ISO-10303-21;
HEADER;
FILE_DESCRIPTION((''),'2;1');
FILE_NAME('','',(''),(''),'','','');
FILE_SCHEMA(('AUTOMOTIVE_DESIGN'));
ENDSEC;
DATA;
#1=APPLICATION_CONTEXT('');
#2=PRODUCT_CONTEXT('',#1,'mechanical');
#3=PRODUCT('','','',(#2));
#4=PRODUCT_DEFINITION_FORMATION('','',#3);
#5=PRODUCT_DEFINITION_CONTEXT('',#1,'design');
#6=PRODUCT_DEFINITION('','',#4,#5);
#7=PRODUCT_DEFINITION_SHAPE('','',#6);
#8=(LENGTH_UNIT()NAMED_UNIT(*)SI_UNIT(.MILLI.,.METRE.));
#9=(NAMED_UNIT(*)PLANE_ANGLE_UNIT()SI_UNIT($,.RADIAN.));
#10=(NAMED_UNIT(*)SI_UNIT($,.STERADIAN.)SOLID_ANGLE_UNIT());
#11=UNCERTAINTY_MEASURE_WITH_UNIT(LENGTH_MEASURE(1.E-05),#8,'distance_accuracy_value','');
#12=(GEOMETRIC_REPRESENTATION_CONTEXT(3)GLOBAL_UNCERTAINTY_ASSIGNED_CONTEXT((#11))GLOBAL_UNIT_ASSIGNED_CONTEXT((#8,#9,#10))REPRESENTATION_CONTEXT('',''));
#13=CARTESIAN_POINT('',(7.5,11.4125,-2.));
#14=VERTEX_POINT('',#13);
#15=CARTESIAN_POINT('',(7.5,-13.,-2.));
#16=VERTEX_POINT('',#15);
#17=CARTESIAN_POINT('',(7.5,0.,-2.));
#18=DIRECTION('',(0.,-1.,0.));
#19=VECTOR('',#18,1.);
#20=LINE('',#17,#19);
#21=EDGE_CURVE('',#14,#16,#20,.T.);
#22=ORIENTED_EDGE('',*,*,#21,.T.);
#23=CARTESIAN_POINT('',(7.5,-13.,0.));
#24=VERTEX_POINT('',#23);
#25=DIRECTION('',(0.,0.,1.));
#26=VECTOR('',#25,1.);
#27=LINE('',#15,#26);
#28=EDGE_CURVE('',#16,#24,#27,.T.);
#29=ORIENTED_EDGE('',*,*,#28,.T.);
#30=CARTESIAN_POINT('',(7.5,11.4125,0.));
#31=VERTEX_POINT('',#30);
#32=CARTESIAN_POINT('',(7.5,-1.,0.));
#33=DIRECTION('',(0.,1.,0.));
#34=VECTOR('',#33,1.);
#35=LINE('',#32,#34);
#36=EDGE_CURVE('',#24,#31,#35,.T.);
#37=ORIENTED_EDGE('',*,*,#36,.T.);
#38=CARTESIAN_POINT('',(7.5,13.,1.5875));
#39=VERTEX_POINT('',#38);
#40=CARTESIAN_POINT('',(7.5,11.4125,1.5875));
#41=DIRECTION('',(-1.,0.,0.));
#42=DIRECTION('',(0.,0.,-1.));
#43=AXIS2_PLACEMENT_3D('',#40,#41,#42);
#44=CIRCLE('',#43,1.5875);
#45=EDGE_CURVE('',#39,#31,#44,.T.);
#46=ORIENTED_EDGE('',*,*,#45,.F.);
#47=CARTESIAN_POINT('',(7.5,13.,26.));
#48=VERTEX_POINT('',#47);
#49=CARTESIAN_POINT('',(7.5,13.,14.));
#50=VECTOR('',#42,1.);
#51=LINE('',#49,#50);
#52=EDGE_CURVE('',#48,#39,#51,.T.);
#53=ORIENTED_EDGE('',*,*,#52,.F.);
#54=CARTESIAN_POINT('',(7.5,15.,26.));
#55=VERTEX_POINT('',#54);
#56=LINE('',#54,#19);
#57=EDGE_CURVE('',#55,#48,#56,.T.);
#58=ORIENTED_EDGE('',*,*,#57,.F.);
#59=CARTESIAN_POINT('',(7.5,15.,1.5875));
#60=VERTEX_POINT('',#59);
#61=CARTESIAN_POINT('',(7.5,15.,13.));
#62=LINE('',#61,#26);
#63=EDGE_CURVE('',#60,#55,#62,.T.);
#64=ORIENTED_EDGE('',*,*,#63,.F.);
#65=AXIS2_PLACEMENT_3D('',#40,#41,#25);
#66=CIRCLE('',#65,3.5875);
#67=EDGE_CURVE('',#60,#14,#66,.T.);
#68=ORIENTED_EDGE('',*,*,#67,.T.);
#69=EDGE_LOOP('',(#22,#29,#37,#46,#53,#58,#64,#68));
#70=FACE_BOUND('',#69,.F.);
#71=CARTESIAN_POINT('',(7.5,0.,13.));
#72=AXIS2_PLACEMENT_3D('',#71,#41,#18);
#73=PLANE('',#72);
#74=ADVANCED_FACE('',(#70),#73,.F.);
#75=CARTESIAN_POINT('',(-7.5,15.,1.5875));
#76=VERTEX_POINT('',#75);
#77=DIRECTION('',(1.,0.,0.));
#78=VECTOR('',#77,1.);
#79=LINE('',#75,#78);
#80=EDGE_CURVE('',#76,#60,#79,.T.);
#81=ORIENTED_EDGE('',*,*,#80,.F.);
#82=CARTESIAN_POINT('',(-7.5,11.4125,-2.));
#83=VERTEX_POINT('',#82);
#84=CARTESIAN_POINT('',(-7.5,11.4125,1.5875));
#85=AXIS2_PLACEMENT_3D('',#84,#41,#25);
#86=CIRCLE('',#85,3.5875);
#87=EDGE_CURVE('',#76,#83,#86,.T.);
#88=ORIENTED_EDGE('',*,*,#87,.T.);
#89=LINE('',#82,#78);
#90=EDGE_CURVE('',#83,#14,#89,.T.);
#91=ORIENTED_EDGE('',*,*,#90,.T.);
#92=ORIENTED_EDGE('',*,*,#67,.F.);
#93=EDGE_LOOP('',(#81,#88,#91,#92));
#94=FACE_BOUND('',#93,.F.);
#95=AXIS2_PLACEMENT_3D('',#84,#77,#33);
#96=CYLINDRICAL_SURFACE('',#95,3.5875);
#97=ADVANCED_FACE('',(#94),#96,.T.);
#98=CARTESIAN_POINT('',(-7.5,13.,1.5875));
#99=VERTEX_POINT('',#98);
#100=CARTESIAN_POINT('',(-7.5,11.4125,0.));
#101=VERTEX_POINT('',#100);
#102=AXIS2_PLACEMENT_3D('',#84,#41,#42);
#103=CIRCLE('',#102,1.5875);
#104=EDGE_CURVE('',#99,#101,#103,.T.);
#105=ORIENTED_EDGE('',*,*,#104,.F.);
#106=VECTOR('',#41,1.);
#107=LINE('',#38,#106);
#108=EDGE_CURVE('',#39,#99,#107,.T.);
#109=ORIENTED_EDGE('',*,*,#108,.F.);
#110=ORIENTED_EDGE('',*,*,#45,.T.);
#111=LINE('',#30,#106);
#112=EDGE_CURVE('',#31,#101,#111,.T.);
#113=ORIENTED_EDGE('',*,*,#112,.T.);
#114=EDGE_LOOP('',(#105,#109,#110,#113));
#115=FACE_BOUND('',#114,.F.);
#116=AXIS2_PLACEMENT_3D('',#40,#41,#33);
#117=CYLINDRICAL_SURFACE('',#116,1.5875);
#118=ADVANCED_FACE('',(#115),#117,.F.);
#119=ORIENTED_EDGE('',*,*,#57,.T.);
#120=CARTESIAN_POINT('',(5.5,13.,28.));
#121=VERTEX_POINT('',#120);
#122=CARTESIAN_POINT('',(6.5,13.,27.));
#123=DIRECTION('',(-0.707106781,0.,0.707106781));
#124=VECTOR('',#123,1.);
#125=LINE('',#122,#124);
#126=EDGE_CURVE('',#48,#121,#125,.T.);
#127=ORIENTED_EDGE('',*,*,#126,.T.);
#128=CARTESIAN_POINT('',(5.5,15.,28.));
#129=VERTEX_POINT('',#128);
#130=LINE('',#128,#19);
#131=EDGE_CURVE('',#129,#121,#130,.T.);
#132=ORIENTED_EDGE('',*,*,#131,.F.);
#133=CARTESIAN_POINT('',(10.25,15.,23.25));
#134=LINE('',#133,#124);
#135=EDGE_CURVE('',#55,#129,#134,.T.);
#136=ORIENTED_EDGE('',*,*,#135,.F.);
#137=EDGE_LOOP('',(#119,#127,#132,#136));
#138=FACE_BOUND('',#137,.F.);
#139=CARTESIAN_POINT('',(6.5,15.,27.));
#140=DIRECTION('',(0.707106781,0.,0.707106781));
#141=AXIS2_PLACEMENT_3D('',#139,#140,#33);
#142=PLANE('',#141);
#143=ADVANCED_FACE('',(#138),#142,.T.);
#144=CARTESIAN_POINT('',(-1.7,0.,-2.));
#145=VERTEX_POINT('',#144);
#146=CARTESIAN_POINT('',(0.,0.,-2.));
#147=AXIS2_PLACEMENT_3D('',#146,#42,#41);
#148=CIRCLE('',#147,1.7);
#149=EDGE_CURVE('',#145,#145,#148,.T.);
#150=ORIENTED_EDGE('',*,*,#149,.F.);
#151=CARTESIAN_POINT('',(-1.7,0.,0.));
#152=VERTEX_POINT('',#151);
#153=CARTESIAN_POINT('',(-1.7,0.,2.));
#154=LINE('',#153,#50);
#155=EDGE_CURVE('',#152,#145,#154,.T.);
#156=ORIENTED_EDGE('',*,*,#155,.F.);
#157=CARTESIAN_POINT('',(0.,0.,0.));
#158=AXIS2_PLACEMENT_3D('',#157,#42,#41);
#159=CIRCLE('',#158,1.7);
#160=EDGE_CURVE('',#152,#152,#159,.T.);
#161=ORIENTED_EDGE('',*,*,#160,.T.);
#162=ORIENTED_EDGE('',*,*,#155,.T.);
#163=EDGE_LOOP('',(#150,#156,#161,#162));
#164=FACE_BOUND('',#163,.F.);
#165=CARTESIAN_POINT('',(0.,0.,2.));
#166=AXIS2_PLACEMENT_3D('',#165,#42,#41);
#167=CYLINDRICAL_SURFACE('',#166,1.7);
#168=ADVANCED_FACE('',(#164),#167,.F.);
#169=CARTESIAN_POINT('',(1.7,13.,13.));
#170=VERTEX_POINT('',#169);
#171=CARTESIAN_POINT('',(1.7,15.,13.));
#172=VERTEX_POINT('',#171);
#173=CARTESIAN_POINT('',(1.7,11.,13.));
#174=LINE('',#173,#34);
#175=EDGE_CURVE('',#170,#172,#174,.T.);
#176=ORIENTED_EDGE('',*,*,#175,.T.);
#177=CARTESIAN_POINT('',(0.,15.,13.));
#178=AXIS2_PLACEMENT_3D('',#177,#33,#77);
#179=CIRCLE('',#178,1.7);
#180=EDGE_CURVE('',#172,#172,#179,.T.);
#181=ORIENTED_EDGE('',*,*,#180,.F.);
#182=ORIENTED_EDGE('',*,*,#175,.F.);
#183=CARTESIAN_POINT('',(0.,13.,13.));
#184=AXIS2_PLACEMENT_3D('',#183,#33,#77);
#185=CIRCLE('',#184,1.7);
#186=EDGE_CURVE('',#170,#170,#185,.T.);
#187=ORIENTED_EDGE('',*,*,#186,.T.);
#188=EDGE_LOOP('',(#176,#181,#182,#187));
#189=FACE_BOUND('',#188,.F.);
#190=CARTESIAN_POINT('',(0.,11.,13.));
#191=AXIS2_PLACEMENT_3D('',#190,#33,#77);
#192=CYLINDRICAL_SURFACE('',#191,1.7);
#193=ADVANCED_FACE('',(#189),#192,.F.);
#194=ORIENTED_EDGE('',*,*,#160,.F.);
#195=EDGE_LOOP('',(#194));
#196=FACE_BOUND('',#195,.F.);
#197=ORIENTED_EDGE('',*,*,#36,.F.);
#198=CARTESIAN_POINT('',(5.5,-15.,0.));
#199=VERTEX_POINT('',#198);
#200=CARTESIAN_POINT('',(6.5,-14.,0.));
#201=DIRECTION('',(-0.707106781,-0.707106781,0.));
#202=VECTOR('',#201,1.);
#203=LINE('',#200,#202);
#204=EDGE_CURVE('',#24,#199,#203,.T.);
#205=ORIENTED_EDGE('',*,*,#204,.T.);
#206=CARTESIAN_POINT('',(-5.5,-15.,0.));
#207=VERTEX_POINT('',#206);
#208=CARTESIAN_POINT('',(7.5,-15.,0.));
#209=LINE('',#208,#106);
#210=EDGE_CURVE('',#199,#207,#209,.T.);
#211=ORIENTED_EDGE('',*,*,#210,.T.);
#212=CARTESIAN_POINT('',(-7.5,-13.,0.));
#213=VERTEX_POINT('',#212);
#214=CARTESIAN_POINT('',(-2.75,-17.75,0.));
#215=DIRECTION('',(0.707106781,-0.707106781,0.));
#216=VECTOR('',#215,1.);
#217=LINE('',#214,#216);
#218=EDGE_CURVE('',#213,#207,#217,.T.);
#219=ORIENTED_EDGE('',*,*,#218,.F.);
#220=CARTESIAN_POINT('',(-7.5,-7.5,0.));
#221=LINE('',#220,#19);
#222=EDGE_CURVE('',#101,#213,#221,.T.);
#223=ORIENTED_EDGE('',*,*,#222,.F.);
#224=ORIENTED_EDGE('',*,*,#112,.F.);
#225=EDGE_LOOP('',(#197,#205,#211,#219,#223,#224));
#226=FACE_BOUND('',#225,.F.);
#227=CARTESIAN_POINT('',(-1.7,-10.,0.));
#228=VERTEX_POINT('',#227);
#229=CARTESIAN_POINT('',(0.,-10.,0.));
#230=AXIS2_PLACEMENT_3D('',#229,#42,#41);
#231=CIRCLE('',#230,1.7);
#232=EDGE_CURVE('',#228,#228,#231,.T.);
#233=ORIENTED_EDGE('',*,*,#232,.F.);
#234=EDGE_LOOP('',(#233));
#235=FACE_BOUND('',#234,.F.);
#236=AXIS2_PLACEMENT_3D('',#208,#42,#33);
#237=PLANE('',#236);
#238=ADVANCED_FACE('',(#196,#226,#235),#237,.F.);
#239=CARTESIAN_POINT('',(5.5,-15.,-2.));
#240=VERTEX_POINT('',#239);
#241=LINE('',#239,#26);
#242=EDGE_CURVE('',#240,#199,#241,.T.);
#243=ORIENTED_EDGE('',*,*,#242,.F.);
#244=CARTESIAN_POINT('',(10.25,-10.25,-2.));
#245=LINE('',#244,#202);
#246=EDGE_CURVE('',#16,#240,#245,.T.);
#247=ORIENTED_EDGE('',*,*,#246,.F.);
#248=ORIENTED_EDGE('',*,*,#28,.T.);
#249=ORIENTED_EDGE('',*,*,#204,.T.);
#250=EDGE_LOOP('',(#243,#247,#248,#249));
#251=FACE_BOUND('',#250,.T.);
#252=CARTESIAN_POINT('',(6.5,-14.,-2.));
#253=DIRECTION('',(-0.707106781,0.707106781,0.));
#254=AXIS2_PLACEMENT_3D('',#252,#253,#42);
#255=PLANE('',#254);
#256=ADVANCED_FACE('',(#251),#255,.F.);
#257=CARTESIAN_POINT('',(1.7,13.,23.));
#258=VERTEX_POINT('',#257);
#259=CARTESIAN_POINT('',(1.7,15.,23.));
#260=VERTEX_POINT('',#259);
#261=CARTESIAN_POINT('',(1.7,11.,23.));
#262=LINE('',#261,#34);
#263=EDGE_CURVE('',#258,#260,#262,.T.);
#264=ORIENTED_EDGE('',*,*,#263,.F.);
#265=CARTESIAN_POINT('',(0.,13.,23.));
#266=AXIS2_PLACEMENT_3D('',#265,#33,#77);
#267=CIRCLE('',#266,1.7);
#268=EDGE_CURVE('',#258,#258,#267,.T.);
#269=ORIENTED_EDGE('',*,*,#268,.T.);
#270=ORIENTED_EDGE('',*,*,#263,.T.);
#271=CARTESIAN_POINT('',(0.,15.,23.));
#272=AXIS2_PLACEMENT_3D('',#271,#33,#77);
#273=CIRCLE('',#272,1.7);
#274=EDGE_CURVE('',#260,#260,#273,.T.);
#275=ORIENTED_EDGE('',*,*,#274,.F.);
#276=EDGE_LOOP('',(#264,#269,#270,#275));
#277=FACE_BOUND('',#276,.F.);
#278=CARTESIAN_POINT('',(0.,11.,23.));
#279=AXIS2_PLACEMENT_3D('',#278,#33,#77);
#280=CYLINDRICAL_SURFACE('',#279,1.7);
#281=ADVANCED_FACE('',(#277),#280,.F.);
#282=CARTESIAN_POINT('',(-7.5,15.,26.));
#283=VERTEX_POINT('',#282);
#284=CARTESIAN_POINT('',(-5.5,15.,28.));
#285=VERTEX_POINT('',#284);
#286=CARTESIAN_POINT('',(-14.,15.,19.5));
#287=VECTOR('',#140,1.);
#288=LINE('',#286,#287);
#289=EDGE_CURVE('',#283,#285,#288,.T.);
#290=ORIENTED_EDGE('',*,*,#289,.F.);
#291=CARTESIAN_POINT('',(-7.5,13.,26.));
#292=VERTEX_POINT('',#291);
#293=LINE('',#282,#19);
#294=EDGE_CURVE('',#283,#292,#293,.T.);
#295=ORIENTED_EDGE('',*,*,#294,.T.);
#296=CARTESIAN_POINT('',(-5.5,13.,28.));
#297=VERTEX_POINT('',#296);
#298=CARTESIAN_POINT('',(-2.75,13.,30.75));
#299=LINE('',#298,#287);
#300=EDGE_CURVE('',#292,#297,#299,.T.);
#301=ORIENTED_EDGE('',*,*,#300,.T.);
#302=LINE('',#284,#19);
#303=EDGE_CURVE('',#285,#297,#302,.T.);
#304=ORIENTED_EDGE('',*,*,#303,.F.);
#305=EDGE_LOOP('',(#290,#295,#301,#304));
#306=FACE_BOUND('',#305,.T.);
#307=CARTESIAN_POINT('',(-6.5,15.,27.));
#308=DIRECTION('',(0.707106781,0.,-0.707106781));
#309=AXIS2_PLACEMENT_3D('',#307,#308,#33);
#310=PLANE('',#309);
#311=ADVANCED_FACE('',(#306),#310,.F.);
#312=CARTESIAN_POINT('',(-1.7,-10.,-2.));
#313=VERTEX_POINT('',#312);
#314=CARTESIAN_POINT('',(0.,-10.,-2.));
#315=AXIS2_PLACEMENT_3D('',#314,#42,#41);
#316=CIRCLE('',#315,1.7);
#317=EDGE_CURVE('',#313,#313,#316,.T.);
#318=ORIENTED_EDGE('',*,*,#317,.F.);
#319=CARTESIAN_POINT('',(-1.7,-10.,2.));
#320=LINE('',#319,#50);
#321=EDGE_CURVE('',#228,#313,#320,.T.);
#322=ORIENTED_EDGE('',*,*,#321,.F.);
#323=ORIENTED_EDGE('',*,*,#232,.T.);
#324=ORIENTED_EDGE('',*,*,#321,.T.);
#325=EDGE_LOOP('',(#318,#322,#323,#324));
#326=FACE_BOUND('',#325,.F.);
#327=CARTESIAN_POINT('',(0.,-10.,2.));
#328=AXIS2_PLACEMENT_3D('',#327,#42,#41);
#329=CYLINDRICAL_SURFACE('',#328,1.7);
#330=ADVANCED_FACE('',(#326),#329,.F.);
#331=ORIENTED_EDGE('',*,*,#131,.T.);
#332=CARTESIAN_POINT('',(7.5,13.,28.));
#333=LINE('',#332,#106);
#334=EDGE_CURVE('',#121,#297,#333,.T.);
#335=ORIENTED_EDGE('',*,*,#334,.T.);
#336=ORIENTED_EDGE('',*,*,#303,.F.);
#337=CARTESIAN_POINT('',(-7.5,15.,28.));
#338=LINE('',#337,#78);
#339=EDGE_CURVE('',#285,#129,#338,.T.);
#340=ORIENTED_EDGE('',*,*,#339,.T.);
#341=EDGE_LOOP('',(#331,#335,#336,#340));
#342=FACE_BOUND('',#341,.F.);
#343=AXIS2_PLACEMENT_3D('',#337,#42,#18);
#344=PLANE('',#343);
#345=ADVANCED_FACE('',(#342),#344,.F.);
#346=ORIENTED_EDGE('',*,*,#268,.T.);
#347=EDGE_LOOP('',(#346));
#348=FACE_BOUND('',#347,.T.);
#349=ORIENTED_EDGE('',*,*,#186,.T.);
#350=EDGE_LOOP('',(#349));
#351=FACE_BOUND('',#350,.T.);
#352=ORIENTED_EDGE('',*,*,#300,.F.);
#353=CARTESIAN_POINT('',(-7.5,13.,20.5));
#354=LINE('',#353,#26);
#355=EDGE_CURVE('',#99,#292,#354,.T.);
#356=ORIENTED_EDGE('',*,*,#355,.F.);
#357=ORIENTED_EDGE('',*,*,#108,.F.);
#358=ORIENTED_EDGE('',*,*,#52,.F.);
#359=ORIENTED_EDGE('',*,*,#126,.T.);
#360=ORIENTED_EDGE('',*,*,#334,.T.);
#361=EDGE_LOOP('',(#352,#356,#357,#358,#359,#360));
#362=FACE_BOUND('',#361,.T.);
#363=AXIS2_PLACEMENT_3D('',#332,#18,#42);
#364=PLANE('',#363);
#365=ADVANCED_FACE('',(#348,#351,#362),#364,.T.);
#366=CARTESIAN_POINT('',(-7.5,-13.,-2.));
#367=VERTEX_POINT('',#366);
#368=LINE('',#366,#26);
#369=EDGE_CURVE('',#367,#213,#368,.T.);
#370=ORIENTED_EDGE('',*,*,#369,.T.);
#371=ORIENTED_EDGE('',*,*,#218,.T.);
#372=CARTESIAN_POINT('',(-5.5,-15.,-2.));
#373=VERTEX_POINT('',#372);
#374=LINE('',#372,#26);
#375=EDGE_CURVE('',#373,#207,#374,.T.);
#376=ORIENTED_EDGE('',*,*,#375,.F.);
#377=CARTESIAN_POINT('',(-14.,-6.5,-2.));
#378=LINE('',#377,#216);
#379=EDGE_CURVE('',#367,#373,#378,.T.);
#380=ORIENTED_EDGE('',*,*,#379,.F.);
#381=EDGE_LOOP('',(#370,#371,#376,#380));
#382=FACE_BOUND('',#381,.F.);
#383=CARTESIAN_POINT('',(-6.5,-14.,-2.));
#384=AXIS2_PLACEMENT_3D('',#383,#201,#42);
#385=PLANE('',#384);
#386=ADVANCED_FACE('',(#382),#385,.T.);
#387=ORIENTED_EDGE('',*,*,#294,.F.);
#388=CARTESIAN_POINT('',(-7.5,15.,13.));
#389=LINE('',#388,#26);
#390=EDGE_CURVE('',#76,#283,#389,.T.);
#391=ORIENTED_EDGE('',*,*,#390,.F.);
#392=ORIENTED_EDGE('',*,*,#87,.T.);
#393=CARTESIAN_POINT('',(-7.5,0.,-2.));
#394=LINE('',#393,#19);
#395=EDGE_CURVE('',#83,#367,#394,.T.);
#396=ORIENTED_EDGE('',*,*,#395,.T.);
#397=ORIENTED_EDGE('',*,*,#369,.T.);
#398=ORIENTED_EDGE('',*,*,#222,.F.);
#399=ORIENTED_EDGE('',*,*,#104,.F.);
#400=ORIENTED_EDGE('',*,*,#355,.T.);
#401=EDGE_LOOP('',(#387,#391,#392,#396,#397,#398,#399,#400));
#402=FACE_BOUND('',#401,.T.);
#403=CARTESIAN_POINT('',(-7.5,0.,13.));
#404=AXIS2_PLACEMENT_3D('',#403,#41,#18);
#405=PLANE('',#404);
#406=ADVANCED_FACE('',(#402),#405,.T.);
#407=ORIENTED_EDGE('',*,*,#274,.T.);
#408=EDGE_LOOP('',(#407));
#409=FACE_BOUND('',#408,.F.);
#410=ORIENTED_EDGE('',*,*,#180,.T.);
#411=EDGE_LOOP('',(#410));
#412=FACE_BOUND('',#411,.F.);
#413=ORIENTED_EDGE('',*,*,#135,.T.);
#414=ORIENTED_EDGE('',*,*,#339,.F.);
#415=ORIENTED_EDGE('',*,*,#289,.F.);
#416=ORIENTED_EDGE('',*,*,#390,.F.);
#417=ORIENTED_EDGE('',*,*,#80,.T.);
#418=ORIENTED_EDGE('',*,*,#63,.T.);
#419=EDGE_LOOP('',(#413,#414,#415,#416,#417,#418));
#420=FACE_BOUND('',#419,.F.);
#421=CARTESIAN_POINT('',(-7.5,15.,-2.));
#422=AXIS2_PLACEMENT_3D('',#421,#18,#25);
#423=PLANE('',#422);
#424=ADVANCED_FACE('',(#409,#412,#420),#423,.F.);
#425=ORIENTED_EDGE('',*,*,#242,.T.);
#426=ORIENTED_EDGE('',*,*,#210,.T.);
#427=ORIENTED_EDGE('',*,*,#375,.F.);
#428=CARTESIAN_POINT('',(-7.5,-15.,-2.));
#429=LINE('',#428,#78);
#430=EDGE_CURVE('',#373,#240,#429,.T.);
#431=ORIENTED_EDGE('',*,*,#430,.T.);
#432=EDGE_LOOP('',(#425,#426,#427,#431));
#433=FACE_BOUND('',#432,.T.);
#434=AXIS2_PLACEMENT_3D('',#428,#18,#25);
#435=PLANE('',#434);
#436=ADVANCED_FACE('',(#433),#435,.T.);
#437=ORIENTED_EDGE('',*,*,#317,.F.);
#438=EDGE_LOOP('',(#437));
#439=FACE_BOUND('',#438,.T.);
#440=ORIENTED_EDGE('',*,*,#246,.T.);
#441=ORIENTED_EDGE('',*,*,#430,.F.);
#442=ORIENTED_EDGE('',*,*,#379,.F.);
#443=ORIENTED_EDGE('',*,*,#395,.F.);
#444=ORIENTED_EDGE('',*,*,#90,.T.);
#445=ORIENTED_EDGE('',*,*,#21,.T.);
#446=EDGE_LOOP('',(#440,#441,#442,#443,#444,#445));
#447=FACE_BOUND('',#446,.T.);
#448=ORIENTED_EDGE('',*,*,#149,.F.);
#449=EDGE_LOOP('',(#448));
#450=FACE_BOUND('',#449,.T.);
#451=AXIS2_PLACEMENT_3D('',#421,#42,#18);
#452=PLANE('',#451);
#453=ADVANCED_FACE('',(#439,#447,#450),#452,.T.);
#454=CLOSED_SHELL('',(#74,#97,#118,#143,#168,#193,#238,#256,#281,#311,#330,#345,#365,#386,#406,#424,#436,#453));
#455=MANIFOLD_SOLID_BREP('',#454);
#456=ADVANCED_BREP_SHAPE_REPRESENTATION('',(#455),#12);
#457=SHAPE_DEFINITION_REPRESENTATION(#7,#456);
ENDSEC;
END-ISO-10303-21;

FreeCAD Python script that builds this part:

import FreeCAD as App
import Part
import Sketcher
from FreeCAD import Vector
Q = App.Units.Quantity


def edges_at(feature, points):
    """Names of the edges that pass closest to the given points."""
    edges = feature.Shape.Edges
    near = lambda p: min(range(len(edges)), key=lambda i: edges[i].distToShape(Part.Vertex(*p))[0])
    return sorted({f"Edge{near(p) + 1}" for p in points})


def add_polygon(sketch, points):
    """Adds a closed chain of lines whose ends are joined by coincident constraints."""
    first, n = sketch.GeometryCount, len(points)
    for a, b in zip(points, points[1:] + points[:1]):
        sketch.addGeometry(Part.LineSegment(App.Vector(*a, 0), App.Vector(*b, 0)), False)
    for i in range(n):
        sketch.addConstraint(Sketcher.Constraint("Coincident", first + i, 2, first + (i + 1) % n, 1))

doc = App.newDocument("Part")
body = doc.addObject("PartDesign::Body", "Body")

# Sketch on YZ plane
sketch1 = body.newObject("Sketcher::SketchObject", "Sketch")
sketch1.AttachmentSupport = (doc.getObject("YZ_Plane"), [""])
sketch1.MapMode = "FlatFace"
sketch1.AttachmentOffset = App.Placement(Vector(0, 0, -7.5), App.Rotation())
add_polygon(sketch1, [(15, 28), (15, -2), (-15, -2), (-15, 28)])  # lines 0-3
sketch1.addConstraint(Sketcher.Constraint("Vertical", 0))
sketch1.addConstraint(Sketcher.Constraint("Horizontal", 1))
sketch1.addConstraint(Sketcher.Constraint("Vertical", 2))
sketch1.addConstraint(Sketcher.Constraint("Horizontal", 3))
sketch1.addConstraint(Sketcher.Constraint("Equal", 3, 0))
sketch1.addConstraint(Sketcher.Constraint("DistanceX", 1, 2, 1, 1, Q("30 mm")))
sketch1.addConstraint(Sketcher.Constraint("DistanceX", -1, 1, 0, 2, Q("15 mm")))
sketch1.addConstraint(Sketcher.Constraint("DistanceY", 0, 2, -1, 1, Q("2 mm")))
pad1 = body.newObject("PartDesign::Pad", "Pad")
pad1.Profile = sketch1
pad1.Length = 15

# Sketch on YZ plane
sketch2 = body.newObject("Sketcher::SketchObject", "Sketch001")
sketch2.AttachmentSupport = (doc.getObject("YZ_Plane"), [""])
sketch2.MapMode = "FlatFace"
sketch2.AttachmentOffset = App.Placement(Vector(0, 0, 7.5), App.Rotation())
add_polygon(sketch2, [(13, 28), (-15, 28), (-15, 0), (13, 0)])  # lines 0-3
sketch2.addConstraint(Sketcher.Constraint("Horizontal", 0))
sketch2.addConstraint(Sketcher.Constraint("Vertical", 1))
sketch2.addConstraint(Sketcher.Constraint("Horizontal", 2))
sketch2.addConstraint(Sketcher.Constraint("Vertical", 3))
sketch2.addConstraint(Sketcher.Constraint("PointOnObject", 1, 2, -1))
sketch2.addConstraint(Sketcher.Constraint("Equal", 2, 1))
sketch2.addConstraint(Sketcher.Constraint("DistanceX", 0, 2, 0, 1, Q("28 mm")))
sketch2.addConstraint(Sketcher.Constraint("DistanceX", 0, 2, -1, 1, Q("15 mm")))
pocket1 = body.newObject("PartDesign::Pocket", "Pocket")
pocket1.Profile = sketch2
pocket1.Type = "ThroughAll"

# Sketch on XY plane
sketch3 = body.newObject("Sketcher::SketchObject", "Sketch002")
sketch3.AttachmentSupport = (doc.getObject("XY_Plane"), [""])
sketch3.MapMode = "FlatFace"
sketch3.addGeometry(Part.Circle(Vector(0, 0, 0), Vector(0, 0, 1), 1.7), False)
sketch3.addGeometry(Part.Circle(Vector(0, -10, 0), Vector(0, 0, 1), 1.7), False)
sketch3.addConstraint(Sketcher.Constraint("Coincident", 0, 3, -1, 1))
sketch3.addConstraint(Sketcher.Constraint("Equal", 0, 1))
sketch3.addConstraint(Sketcher.Constraint("PointOnObject", 1, 3, -2))
sketch3.addConstraint(Sketcher.Constraint("Diameter", 0, Q("3.4 mm")))
sketch3.addConstraint(Sketcher.Constraint("DistanceY", 1, 3, -1, 1, Q("10 mm")))
doc.recompute()
hole = body.newObject("PartDesign::Hole", "Hole")
hole.Profile = sketch3
hole.ThreadType = "None"
hole.Diameter = 3.4
hole.DepthType = "Dimension"
hole.Depth = 2
hole.DrillPoint = "Flat"

# Sketch on XZ plane
sketch4 = body.newObject("Sketcher::SketchObject", "Sketch003")
sketch4.AttachmentSupport = (doc.getObject("XZ_Plane"), [""])
sketch4.MapMode = "FlatFace"
sketch4.AttachmentOffset = App.Placement(Vector(0, 0, -13), App.Rotation())
sketch4.addGeometry(Part.Circle(Vector(0, 13, 0), Vector(0, 0, 1), 1.7), False)
sketch4.addGeometry(Part.Circle(Vector(0, 23, 0), Vector(0, 0, 1), 1.7), False)
sketch4.addConstraint(Sketcher.Constraint("Equal", 0, 1))
sketch4.addConstraint(Sketcher.Constraint("PointOnObject", 0, 3, -2))
sketch4.addConstraint(Sketcher.Constraint("PointOnObject", 1, 3, -2))
sketch4.addConstraint(Sketcher.Constraint("Diameter", 0, Q("3.4 mm")))
sketch4.addConstraint(Sketcher.Constraint("DistanceY", -1, 1, 0, 3, Q("13 mm")))
sketch4.addConstraint(Sketcher.Constraint("DistanceY", -1, 1, 1, 3, Q("23 mm")))
doc.recompute()
hole2 = body.newObject("PartDesign::Hole", "Hole001")
hole2.Profile = sketch4
hole2.ThreadType = "None"
hole2.Diameter = 3.4
hole2.DepthType = "Dimension"
hole2.Depth = 2
hole2.DrillPoint = "Flat"
doc.recompute()

chamfer = body.newObject("PartDesign::Chamfer", "Chamfer")
chamfer.Base = (hole2, edges_at(hole2, [
    (-7.5, 14, 28),
    (7.5, 14, 28),
    (-7.5, -15, -1),
    (7.5, -15, -1),
]))
chamfer.Size = 2
doc.recompute()

fillet = body.newObject("PartDesign::Fillet", "Fillet")
fillet.Base = (chamfer, edges_at(chamfer, [(0, 13, 0)]))
fillet.Radius = 1.5875
doc.recompute()

fillet2 = body.newObject("PartDesign::Fillet", "Fillet001")
fillet2.Base = (fillet, edges_at(fillet, [(0, 15, -2)]))
fillet2.Radius = 3.5875

doc.recompute()
